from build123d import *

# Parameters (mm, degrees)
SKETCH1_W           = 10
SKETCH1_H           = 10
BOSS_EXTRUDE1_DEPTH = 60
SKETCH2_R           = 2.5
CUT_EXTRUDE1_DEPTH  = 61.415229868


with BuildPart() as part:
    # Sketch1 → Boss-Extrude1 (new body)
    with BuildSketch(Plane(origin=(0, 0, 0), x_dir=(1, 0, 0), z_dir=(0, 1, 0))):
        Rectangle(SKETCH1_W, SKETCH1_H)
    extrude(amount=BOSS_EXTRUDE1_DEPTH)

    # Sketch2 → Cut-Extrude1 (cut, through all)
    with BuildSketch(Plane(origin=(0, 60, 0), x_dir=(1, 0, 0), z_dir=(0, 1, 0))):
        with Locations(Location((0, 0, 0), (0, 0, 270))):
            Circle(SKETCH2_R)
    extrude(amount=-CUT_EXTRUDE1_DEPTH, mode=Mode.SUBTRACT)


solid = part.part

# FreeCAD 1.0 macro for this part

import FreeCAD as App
import Part
import Sketcher


def add_polygon(sketch, points):
    """Adds a closed chain of lines whose ends are joined by coincident constraints."""
    first, n = sketch.GeometryCount, len(points)
    for a, b in zip(points, points[1:] + points[:1]):
        sketch.addGeometry(Part.LineSegment(App.Vector(*a, 0), App.Vector(*b, 0)), False)
    for i in range(n):
        sketch.addConstraint(Sketcher.Constraint("Coincident", first + i, 2, first + (i + 1) % n, 1))

doc = App.newDocument("Part")
body = doc.addObject("PartDesign::Body", "Body")

# Sketch on XZ plane
sketch1 = body.newObject("Sketcher::SketchObject", "Sketch")
sketch1.AttachmentSupport = (doc.getObject("XZ_Plane"), [""])
sketch1.MapMode = "FlatFace"
add_polygon(sketch1, [(-5, -5), (-5, 5), (5, 5), (5, -5)])  # lines 0-3
sketch1.addConstraint([
    Sketcher.Constraint("Vertical", 0),
    Sketcher.Constraint("Horizontal", 1),
    Sketcher.Constraint("Vertical", 2),
    Sketcher.Constraint("Horizontal", 3),
    Sketcher.Constraint("Symmetric", 0, 2, 2, 2, -1, 1),
    Sketcher.Constraint("Equal", 3, 0),
    Sketcher.Constraint("DistanceX", 1, 1, 1, 2, 10.0),
])
pad1 = body.newObject("PartDesign::Pad", "Pad")
pad1.Profile = sketch1
pad1.Length = 60
pad1.Reversed = True

# Sketch on XZ plane
sketch2 = body.newObject("Sketcher::SketchObject", "Sketch001")
sketch2.AttachmentSupport = (doc.getObject("XZ_Plane"), [""])
sketch2.MapMode = "FlatFace"
sketch2.AttachmentOffset = App.Placement(App.Vector(0, 0, -60), App.Rotation())
sketch2.addGeometry(Part.Circle(App.Vector(0, 0, 0), App.Vector(0, 0, 1), 2.5), False)
sketch2.addConstraint([
    Sketcher.Constraint("Coincident", 0, 3, -1, 1),
    Sketcher.Constraint("Diameter", 0, 5.0),
])
pocket1 = body.newObject("PartDesign::Pocket", "Pocket")
pocket1.Profile = sketch2
pocket1.Type = "ThroughAll"
pocket1.Reversed = True

doc.recompute()
